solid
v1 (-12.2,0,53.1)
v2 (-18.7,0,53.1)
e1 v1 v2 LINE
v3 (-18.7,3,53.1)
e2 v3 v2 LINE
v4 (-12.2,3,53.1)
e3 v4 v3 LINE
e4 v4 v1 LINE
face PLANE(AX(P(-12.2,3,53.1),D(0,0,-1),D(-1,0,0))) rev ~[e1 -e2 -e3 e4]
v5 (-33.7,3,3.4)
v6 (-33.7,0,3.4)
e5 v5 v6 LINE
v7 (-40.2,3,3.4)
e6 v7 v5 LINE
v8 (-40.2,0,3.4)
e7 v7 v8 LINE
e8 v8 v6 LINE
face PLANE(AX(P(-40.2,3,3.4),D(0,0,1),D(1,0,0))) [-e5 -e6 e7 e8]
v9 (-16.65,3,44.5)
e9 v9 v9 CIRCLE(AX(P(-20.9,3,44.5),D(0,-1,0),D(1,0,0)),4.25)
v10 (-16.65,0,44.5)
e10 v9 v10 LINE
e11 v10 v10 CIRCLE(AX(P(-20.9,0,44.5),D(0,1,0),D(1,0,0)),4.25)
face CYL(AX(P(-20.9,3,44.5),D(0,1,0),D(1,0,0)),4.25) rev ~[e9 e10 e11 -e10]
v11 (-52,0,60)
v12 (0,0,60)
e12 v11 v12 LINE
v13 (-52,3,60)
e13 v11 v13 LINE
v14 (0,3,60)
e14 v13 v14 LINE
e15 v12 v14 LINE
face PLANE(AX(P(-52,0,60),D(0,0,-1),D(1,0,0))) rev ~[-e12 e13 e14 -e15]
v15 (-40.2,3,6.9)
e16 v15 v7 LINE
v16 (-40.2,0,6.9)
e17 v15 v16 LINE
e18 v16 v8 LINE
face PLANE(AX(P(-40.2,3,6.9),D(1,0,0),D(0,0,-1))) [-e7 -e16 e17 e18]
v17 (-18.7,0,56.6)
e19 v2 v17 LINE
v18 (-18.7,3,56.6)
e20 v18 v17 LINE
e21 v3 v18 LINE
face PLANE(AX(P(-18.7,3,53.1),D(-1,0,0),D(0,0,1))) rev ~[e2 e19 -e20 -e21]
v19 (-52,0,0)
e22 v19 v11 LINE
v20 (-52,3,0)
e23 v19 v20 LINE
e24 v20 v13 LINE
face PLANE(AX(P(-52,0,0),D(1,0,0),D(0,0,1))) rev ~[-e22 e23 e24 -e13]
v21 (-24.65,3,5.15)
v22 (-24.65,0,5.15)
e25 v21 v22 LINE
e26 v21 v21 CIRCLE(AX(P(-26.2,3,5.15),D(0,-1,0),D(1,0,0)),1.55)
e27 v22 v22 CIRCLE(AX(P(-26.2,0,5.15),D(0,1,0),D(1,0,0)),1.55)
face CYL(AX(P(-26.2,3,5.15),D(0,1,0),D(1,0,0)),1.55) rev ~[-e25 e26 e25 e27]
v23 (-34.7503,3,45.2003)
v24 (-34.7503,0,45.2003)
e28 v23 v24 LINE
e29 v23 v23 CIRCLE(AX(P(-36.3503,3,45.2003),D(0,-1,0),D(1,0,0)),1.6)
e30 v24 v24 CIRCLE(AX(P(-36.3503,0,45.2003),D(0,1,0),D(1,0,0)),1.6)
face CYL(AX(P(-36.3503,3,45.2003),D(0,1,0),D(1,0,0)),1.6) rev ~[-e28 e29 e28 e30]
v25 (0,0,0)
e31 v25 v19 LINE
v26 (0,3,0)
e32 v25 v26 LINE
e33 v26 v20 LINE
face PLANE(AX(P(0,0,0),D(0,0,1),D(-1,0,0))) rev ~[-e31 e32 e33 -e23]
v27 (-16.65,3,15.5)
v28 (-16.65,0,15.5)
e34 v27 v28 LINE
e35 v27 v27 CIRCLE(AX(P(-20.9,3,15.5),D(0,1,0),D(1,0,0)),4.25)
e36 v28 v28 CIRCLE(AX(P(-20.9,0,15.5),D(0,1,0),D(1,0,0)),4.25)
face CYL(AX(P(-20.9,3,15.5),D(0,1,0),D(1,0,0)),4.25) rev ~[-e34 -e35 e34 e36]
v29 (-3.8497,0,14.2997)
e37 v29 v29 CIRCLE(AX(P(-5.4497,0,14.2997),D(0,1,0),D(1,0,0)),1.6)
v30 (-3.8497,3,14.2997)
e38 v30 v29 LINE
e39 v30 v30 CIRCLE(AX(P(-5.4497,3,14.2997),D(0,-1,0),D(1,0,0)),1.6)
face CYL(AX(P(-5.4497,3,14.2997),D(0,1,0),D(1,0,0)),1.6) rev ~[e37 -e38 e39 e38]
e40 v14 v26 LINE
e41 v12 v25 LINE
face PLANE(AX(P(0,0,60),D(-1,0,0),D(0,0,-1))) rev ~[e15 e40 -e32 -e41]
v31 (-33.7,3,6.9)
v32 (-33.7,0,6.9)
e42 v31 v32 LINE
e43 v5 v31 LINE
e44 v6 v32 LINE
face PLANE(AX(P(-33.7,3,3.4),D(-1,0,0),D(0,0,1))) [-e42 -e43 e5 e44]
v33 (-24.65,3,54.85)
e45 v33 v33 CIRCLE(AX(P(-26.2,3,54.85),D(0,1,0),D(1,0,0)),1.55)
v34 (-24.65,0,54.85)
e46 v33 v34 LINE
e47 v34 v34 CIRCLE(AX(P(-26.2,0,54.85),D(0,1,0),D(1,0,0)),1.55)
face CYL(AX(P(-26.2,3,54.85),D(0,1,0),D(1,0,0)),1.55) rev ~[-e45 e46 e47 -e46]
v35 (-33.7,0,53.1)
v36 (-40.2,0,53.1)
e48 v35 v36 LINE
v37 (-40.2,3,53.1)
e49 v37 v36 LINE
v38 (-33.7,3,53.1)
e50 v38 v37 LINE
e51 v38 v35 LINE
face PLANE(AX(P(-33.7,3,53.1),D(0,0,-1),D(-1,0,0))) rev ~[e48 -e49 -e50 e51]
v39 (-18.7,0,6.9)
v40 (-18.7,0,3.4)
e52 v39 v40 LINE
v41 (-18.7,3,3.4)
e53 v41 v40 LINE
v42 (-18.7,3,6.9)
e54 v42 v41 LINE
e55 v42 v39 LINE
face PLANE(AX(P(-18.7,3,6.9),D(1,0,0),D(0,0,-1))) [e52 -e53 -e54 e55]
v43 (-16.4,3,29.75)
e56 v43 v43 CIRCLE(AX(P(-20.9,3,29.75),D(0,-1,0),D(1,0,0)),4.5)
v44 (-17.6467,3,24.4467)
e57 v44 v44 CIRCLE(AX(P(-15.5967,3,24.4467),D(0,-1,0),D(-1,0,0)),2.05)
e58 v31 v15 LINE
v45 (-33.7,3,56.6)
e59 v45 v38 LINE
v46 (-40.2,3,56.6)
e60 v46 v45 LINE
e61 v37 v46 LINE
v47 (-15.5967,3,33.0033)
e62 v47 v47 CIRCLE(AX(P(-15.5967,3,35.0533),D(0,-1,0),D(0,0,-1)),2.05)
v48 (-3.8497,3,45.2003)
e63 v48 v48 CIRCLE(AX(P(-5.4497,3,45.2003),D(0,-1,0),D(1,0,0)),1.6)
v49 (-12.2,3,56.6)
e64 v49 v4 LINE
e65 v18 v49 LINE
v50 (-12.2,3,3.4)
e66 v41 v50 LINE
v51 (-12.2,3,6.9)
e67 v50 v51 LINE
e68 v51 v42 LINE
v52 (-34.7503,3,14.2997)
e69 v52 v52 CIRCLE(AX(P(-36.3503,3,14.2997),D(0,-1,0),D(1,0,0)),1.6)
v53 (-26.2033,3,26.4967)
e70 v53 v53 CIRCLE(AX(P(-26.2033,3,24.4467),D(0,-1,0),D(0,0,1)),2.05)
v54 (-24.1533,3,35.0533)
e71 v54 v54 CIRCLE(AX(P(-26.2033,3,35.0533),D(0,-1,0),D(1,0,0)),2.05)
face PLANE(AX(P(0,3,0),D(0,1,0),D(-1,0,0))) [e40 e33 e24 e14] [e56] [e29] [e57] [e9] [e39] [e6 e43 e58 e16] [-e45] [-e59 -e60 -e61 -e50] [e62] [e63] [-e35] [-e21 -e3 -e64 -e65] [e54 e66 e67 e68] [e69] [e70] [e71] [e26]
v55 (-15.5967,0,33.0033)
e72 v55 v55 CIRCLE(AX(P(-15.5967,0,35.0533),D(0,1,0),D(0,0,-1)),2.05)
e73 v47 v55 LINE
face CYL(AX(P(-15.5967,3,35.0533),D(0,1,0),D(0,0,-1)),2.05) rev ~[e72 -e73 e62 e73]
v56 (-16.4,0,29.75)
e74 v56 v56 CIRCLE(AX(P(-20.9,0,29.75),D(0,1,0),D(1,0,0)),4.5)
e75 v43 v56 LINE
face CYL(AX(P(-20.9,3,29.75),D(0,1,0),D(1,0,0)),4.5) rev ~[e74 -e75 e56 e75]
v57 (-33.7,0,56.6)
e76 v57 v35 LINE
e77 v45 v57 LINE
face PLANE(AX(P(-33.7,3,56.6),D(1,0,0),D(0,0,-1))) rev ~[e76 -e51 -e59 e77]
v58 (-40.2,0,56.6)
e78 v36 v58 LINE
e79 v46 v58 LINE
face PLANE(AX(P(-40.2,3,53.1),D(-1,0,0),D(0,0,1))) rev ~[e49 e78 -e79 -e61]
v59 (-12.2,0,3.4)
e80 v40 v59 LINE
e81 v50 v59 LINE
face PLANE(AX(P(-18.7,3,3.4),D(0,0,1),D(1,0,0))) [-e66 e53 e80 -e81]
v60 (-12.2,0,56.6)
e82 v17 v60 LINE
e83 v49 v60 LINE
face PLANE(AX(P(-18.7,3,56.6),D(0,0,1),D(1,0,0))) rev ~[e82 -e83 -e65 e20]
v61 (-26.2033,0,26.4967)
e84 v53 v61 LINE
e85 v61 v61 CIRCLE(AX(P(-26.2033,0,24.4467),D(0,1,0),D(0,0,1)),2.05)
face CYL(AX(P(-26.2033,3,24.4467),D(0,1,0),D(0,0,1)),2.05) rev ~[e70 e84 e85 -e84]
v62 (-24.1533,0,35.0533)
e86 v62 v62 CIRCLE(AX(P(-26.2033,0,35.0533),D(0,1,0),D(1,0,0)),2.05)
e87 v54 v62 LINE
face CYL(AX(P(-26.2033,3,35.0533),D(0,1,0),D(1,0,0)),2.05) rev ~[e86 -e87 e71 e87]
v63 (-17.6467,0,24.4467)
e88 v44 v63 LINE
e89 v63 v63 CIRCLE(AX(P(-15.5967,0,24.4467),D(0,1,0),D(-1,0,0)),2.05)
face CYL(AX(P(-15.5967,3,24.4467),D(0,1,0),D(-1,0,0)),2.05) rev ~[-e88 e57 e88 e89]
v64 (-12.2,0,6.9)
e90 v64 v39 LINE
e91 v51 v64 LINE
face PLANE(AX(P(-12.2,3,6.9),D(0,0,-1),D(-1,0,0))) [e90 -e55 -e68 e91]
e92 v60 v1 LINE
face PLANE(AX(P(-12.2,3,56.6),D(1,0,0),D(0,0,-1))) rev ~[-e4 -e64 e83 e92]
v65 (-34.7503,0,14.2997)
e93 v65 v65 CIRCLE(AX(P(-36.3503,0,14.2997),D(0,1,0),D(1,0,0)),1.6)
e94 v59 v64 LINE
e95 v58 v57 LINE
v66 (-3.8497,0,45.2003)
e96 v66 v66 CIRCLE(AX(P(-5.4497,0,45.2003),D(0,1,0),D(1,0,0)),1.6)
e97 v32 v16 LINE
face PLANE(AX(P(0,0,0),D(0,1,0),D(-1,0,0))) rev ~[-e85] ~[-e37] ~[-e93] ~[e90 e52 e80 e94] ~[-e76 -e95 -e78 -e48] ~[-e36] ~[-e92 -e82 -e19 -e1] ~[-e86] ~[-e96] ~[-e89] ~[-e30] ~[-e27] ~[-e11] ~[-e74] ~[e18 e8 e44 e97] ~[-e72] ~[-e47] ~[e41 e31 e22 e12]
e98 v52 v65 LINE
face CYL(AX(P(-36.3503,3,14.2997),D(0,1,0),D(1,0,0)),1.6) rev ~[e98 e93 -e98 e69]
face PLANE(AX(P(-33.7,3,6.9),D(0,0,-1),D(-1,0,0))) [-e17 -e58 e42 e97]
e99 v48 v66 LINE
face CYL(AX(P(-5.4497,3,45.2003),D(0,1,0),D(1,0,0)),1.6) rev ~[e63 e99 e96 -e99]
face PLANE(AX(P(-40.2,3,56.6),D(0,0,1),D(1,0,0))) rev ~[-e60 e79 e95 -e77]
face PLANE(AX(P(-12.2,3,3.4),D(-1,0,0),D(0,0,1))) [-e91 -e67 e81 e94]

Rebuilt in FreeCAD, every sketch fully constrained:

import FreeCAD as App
import Part
import Sketcher
from FreeCAD import Vector


def add_polygon(sketch, points):
    """Adds a closed chain of lines whose ends are joined by coincident constraints."""
    first, n = sketch.GeometryCount, len(points)
    for a, b in zip(points, points[1:] + points[:1]):
        sketch.addGeometry(Part.LineSegment(App.Vector(*a, 0), App.Vector(*b, 0)), False)
    for i in range(n):
        sketch.addConstraint(Sketcher.Constraint("Coincident", first + i, 2, first + (i + 1) % n, 1))

doc = App.newDocument("Part")
params = doc.addObject("Spreadsheet::Sheet", "Params")
for row, (alias, value) in enumerate([
    ("sketch1_width", "52 mm"),
    ("sketch1_height", "60 mm"),
    ("pad1_length", "3 mm"),
    ("sketch2_width", "6.5 mm"),
    ("sketch2_height", "3.5 mm"),
    ("pocket1_length", "3 mm"),
    ("sketch3_diameter", "8.5 mm"),
    ("pocket2_length", "3 mm"),
    ("sketch4_diameter", "9 mm"),
    ("pocket3_length", "3 mm"),
    ("sketch5_diameter", "4.1 mm"),
    ("pocket4_length", "3 mm"),
    ("sketch6_diameter", "3.2 mm"),
    ("pocket5_length", "3.2 mm"),
    ("sketch7_diameter", "3.1 mm"),
    ("pocket6_length", "3.1 mm"),
], start=1):
    params.set(f"A{row}", alias)
    params.set(f"B{row}", "=" + value)
    params.setAlias(f"B{row}", alias)

body = doc.addObject("PartDesign::Body", "Body")

sketch1 = body.newObject("Sketcher::SketchObject", "Sketch")
sketch1.AttachmentSupport = (doc.getObject("XZ_Plane"), [""])
sketch1.MapMode = "FlatFace"
add_polygon(sketch1, [(0, 60), (0, 0), (-52, 0), (-52, 60)])
sketch1.addConstraint([
    Sketcher.Constraint("Vertical", 0),
    Sketcher.Constraint("Horizontal", 1),
    Sketcher.Constraint("Vertical", 2),
    Sketcher.Constraint("Horizontal", 3),
    Sketcher.Constraint("Coincident", 0, 2, -1, 1),
    Sketcher.Constraint("DistanceX", 1, 2, 1, 1, 52.0),
    Sketcher.Constraint("DistanceY", 0, 2, 0, 1, 60.0),
])
sketch1.setExpression("Constraints[9]", "Params.sketch1_width")
sketch1.setExpression("Constraints[10]", "Params.sketch1_height")
pad1 = body.newObject("PartDesign::Pad", "Pad")
pad1.Profile = sketch1
pad1.setExpression("Length", "Params.pad1_length")
pad1.Reversed = True

sketch2 = body.newObject("Sketcher::SketchObject", "Sketch001")
sketch2.AttachmentSupport = (doc.getObject("XZ_Plane"), [""])
sketch2.MapMode = "FlatFace"
sketch2.AttachmentOffset = App.Placement(Vector(0, 0, -3), App.Rotation())
add_polygon(sketch2, [(-12.2, 3.4), (-18.7, 3.4), (-18.7, 6.9), (-12.2, 6.9)])
add_polygon(sketch2, [(-33.7, 3.4), (-40.2, 3.4), (-40.2, 6.9), (-33.7, 6.9)])
add_polygon(sketch2, [(-40.2, 53.1), (-40.2, 56.6), (-33.7, 56.6), (-33.7, 53.1)])
add_polygon(sketch2, [(-18.7, 53.1), (-18.7, 56.6), (-12.2, 56.6), (-12.2, 53.1)])
sketch2.addConstraint([
    Sketcher.Constraint("Horizontal", 0),
    Sketcher.Constraint("Vertical", 1),
    Sketcher.Constraint("Horizontal", 2),
    Sketcher.Constraint("Vertical", 3),
    Sketcher.Constraint("Horizontal", 4),
    Sketcher.Constraint("Vertical", 5),
    Sketcher.Constraint("Horizontal", 6),
    Sketcher.Constraint("Vertical", 7),
    Sketcher.Constraint("Vertical", 8),
    Sketcher.Constraint("Horizontal", 9),
    Sketcher.Constraint("Vertical", 10),
    Sketcher.Constraint("Horizontal", 11),
    Sketcher.Constraint("Vertical", 12),
    Sketcher.Constraint("Horizontal", 13),
    Sketcher.Constraint("Vertical", 14),
    Sketcher.Constraint("Horizontal", 15),
    Sketcher.Constraint("Horizontal", 3, 2, 4, 2),
    Sketcher.Constraint("Horizontal", 2, 2, 5, 2),
    Sketcher.Constraint("Horizontal", 9, 2, 12, 2),
    Sketcher.Constraint("Horizontal", 11, 2, 14, 2),
    Sketcher.Constraint("Vertical", 5, 2, 8, 2),
    Sketcher.Constraint("Vertical", 7, 2, 9, 2),
    Sketcher.Constraint("Vertical", 1, 2, 12, 2),
    Sketcher.Constraint("Vertical", 3, 2, 13, 2),
    Sketcher.Constraint("Equal", 2, 4),
    Sketcher.Constraint("Equal", 7, 8),
    Sketcher.Constraint("DistanceX", 0, 2, 0, 1, 6.5),
    Sketcher.Constraint("DistanceY", 1, 1, 1, 2, 3.5),
    Sketcher.Constraint("DistanceX", 6, 2, 1, 2, 15.0),
    Sketcher.Constraint("DistanceY", -1, 1, 0, 2, 3.4),
    Sketcher.Constraint("DistanceX", 0, 2, -1, 1, 18.7),
    Sketcher.Constraint("DistanceY", -1, 1, 8, 2, 56.6),
])
sketch2.setExpression("Constraints[42]", "Params.sketch2_width")
sketch2.setExpression("Constraints[43]", "Params.sketch2_height")
pocket1 = body.newObject("PartDesign::Pocket", "Pocket")
pocket1.Profile = sketch2
pocket1.setExpression("Length", "Params.pocket1_length")
pocket1.Reversed = True

sketch3 = body.newObject("Sketcher::SketchObject", "Sketch002")
sketch3.AttachmentSupport = (doc.getObject("XZ_Plane"), [""])
sketch3.MapMode = "FlatFace"
sketch3.AttachmentOffset = App.Placement(Vector(0, 0, -3), App.Rotation())
sketch3.addGeometry([
    Part.Circle(Vector(-20.9, 44.5, 0), Vector(0, 0, 1), 4.2),
    Part.Circle(Vector(-20.9, 15.5, 0), Vector(0, 0, 1), 4.2),
], False)
sketch3.addConstraint([
    Sketcher.Constraint("Equal", 0, 1),
    Sketcher.Constraint("Vertical", 0, 3, 1, 3),
    Sketcher.Constraint("Diameter", 0, 8.5),
    Sketcher.Constraint("DistanceY", -1, 1, 1, 3, 15.5),
    Sketcher.Constraint("DistanceY", 1, 3, 0, 3, 29.0),
    Sketcher.Constraint("DistanceX", 0, 3, -1, 1, 20.9),
])
sketch3.setExpression("Constraints[2]", "Params.sketch3_diameter")
pocket2 = body.newObject("PartDesign::Pocket", "Pocket001")
pocket2.Profile = sketch3
pocket2.setExpression("Length", "Params.pocket2_length")
pocket2.Reversed = True

sketch4 = body.newObject("Sketcher::SketchObject", "Sketch003")
sketch4.AttachmentSupport = (doc.getObject("XZ_Plane"), [""])
sketch4.MapMode = "FlatFace"
sketch4.AttachmentOffset = App.Placement(Vector(0, 0, -3), App.Rotation())
sketch4.addGeometry(Part.Circle(Vector(-20.9, 29.8, 0), Vector(0, 0, 1), 4.5), False)
sketch4.addConstraint([
    Sketcher.Constraint("Diameter", 0, 9.0),
    Sketcher.Constraint("DistanceX", 0, 3, -1, 1, 20.9),
    Sketcher.Constraint("DistanceY", -1, 1, 0, 3, 29.75),
])
sketch4.setExpression("Constraints[0]", "Params.sketch4_diameter")
pocket3 = body.newObject("PartDesign::Pocket", "Pocket002")
pocket3.Profile = sketch4
pocket3.setExpression("Length", "Params.pocket3_length")
pocket3.Reversed = True

sketch5 = body.newObject("Sketcher::SketchObject", "Sketch004")
sketch5.AttachmentSupport = (doc.getObject("XZ_Plane"), [""])
sketch5.MapMode = "FlatFace"
sketch5.AttachmentOffset = App.Placement(Vector(0, 0, -3), App.Rotation())
sketch5.addGeometry(Part.Circle(Vector(-26.2, 35.1, 0), Vector(0, 0, 1), 2), False)
sketch5.addConstraint([
    Sketcher.Constraint("Diameter", 0, 4.1),
    Sketcher.Constraint("DistanceX", 0, 3, -1, 1, 26.2033),
    Sketcher.Constraint("DistanceY", -1, 1, 0, 3, 35.0533),
])
sketch5.setExpression("Constraints[0]", "Params.sketch5_diameter")
pocket4 = body.newObject("PartDesign::Pocket", "Pocket003")
pocket4.Profile = sketch5
pocket4.setExpression("Length", "Params.pocket4_length")
pocket4.Reversed = True
doc.recompute()

datumline = body.newObject("PartDesign::Line", "DatumLine")
datumline.Placement = App.Placement(Vector(-20.9, 0, 29.75), App.Rotation(Vector(0, 0, 1), Vector(0, 1, 0)))
polarpattern = body.newObject("PartDesign::PolarPattern", "PolarPattern")
polarpattern.Originals = [pocket4]
polarpattern.Axis = (datumline, [""])
polarpattern.Angle = 360
polarpattern.Occurrences = 4
body.Tip = polarpattern

sketch6 = body.newObject("Sketcher::SketchObject", "Sketch005")
sketch6.AttachmentSupport = (doc.getObject("XZ_Plane"), [""])
sketch6.MapMode = "FlatFace"
sketch6.AttachmentOffset = App.Placement(Vector(0, 0, -3), App.Rotation())
sketch6.addGeometry([
    Part.Circle(Vector(-5.4, 45.2, 0), Vector(0, 0, 1), 1.6),
    Part.Circle(Vector(-36.4, 45.2, 0), Vector(0, 0, 1), 1.6),
    Part.Circle(Vector(-36.4, 14.3, 0), Vector(0, 0, 1), 1.6),
    Part.Circle(Vector(-5.4, 14.3, 0), Vector(0, 0, 1), 1.6),
], False)
sketch6.addConstraint([
    Sketcher.Constraint("Equal", 0, 1),
    Sketcher.Constraint("Equal", 1, 2),
    Sketcher.Constraint("Equal", 2, 3),
    Sketcher.Constraint("Horizontal", 0, 3, 1, 3),
    Sketcher.Constraint("Horizontal", 2, 3, 3, 3),
    Sketcher.Constraint("Vertical", 1, 3, 2, 3),
    Sketcher.Constraint("Vertical", 0, 3, 3, 3),
    Sketcher.Constraint("Diameter", 0, 3.2),
    Sketcher.Constraint("DistanceX", 0, 3, -1, 1, 5.4497),
    Sketcher.Constraint("DistanceY", -1, 1, 0, 3, 45.2003),
    Sketcher.Constraint("DistanceX", 1, 3, -1, 1, 36.3503),
    Sketcher.Constraint("DistanceY", -1, 1, 2, 3, 14.2997),
])
sketch6.setExpression("Constraints[7]", "Params.sketch6_diameter")
pocket5 = body.newObject("PartDesign::Pocket", "Pocket004")
pocket5.Profile = sketch6
pocket5.setExpression("Length", "Params.pocket5_length")
pocket5.Reversed = True

sketch7 = body.newObject("Sketcher::SketchObject", "Sketch006")
sketch7.AttachmentSupport = (doc.getObject("XZ_Plane"), [""])
sketch7.MapMode = "FlatFace"
sketch7.AttachmentOffset = App.Placement(Vector(0, 0, -3), App.Rotation())
sketch7.addGeometry([
    Part.Circle(Vector(-26.2, 5.2, 0), Vector(0, 0, 1), 1.6),
    Part.Circle(Vector(-26.2, 54.9, 0), Vector(0, 0, 1), 1.6),
], False)
sketch7.addConstraint([
    Sketcher.Constraint("Equal", 0, 1),
    Sketcher.Constraint("Vertical", 0, 3, 1, 3),
    Sketcher.Constraint("Diameter", 0, 3.1),
    Sketcher.Constraint("DistanceX", 0, 3, -1, 1, 26.2),
    Sketcher.Constraint("DistanceY", 0, 3, 1, 3, 49.7),
    Sketcher.Constraint("DistanceY", -1, 1, 0, 3, 5.15),
])
sketch7.setExpression("Constraints[2]", "Params.sketch7_diameter")
pocket6 = body.newObject("PartDesign::Pocket", "Pocket005")
pocket6.Profile = sketch7
pocket6.setExpression("Length", "Params.pocket6_length")
pocket6.Reversed = True

doc.recompute()
